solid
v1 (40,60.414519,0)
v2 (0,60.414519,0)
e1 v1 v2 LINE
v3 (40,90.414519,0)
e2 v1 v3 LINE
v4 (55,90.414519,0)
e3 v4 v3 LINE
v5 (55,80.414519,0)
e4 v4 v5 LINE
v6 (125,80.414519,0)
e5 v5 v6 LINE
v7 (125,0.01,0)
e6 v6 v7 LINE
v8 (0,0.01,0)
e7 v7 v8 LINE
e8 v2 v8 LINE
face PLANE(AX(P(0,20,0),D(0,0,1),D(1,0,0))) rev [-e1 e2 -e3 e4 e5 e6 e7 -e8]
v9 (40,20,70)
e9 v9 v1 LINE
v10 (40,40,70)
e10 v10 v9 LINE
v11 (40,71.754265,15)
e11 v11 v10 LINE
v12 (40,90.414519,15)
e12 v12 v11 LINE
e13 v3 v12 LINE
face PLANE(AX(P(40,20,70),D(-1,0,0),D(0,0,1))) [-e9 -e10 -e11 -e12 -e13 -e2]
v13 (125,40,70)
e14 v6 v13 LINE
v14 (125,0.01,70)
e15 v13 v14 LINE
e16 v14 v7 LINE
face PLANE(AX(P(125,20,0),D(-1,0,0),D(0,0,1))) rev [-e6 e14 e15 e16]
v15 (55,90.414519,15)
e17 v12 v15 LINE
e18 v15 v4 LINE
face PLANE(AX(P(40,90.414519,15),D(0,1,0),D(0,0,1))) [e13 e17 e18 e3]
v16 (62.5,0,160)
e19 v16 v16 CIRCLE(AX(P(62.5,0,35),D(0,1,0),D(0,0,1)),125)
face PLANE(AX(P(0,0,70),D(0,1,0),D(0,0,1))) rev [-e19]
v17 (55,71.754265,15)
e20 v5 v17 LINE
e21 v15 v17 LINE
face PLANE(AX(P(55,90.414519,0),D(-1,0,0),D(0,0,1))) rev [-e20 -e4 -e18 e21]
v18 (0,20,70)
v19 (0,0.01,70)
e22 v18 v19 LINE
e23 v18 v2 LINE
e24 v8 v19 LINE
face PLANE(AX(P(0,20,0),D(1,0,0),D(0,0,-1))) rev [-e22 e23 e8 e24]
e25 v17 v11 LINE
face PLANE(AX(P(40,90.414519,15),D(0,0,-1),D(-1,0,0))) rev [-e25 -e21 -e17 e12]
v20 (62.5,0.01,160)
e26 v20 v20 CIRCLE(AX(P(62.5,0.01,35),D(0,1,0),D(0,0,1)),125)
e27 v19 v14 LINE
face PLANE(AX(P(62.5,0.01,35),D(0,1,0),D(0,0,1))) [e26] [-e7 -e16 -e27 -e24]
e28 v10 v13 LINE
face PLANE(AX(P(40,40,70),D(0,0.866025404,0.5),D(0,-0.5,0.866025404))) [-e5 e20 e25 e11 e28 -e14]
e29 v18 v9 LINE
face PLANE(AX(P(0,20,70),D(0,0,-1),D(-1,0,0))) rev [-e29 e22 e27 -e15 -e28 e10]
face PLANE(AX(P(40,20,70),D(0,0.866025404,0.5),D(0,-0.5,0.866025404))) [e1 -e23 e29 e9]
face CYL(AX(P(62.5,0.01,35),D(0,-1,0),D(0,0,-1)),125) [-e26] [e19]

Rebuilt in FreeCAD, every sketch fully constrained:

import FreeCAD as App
import Part
import Sketcher
from FreeCAD import Vector
Q = App.Units.Quantity


def add_polygon(sketch, points):
    """Adds a closed chain of lines whose ends are joined by coincident constraints."""
    first, n = sketch.GeometryCount, len(points)
    for a, b in zip(points, points[1:] + points[:1]):
        sketch.addGeometry(Part.LineSegment(App.Vector(*a, 0), App.Vector(*b, 0)), False)
    for i in range(n):
        sketch.addConstraint(Sketcher.Constraint("Coincident", first + i, 2, first + (i + 1) % n, 1))

doc = App.newDocument("Part")
body = doc.addObject("PartDesign::Body", "Body")

# Sketch on XZ plane
sketch1 = doc.addObject("Sketcher::SketchObject", "Sketch")
body.addObject(sketch1)
sketch1.AttachmentSupport = (doc.XZ_Plane, [""])
sketch1.MapMode = "FlatFace"
add_polygon(sketch1, [(0, 0), (0, 70), (125, 70), (125, 0)])  # lines 0-3
sketch1.addConstraint([
    Sketcher.Constraint("Vertical", 0),
    Sketcher.Constraint("Horizontal", 1),
    Sketcher.Constraint("Vertical", 2),
    Sketcher.Constraint("Horizontal", 3),
    Sketcher.Constraint("Coincident", 3, 2, -1, 1),
    Sketcher.Constraint("DistanceX", 1, 1, 1, 2, Q("125 mm")),
    Sketcher.Constraint("DistanceY", 0, 1, 0, 2, Q("70 mm")),
])
pad1 = doc.addObject("PartDesign::Pad", "Pad")
body.addObject(pad1)
pad1.Profile = sketch1
pad1.Length = 20
pad1.Reversed = True

# Sketch on YZ plane
sketch2 = doc.addObject("Sketcher::SketchObject", "Sketch001")
body.addObject(sketch2)
sketch2.AttachmentSupport = (doc.YZ_Plane, [""])
sketch2.MapMode = "FlatFace"
add_polygon(sketch2, [(20, 0), (20, 70), (60.414519, 0)])  # lines 0-2
sketch2.addConstraint([
    Sketcher.Constraint("Vertical", 0),
    Sketcher.Constraint("Horizontal", 2),
    Sketcher.Constraint("PointOnObject", 1, 2, -1),
    Sketcher.Constraint("DistanceY", 0, 1, 0, 2, Q("70 mm")),
    Sketcher.Constraint("Angle", 1, Q("-60 deg")),
    Sketcher.Constraint("DistanceX", -1, 1, 0, 2, Q("20 mm")),
])
pad2 = doc.addObject("PartDesign::Pad", "Pad001")
body.addObject(pad2)
pad2.Profile = sketch2
pad2.Length = 40

# Sketch on YZ plane
sketch3 = doc.addObject("Sketcher::SketchObject", "Sketch002")
body.addObject(sketch3)
sketch3.AttachmentSupport = (doc.YZ_Plane, [""])
sketch3.MapMode = "FlatFace"
sketch3.AttachmentOffset = App.Placement(Vector(0, 0, 125), App.Rotation())
add_polygon(sketch3, [(40, 70), (20, 70), (20, 0), (80.414519, 0)])  # lines 0-3
sketch3.addConstraint([
    Sketcher.Constraint("Horizontal", 0),
    Sketcher.Constraint("Vertical", 1),
    Sketcher.Constraint("Horizontal", 2),
    Sketcher.Constraint("PointOnObject", 1, 2, -1),
    Sketcher.Constraint("DistanceX", 0, 2, 0, 1, Q("20 mm")),
    Sketcher.Constraint("DistanceY", 1, 2, 1, 1, Q("70 mm")),
    Sketcher.Constraint("Angle", 3, Q("120 deg")),
    Sketcher.Constraint("DistanceX", -1, 1, 0, 2, Q("20 mm")),
])
pad3 = doc.addObject("PartDesign::Pad", "Pad002")
body.addObject(pad3)
pad3.Profile = sketch3
pad3.Length = 85
pad3.Reversed = True

# Sketch on XZ plane
sketch4 = doc.addObject("Sketcher::SketchObject", "Sketch003")
body.addObject(sketch4)
sketch4.AttachmentSupport = (doc.XZ_Plane, [""])
sketch4.MapMode = "FlatFace"
sketch4.AttachmentOffset = App.Placement(Vector(0, 0, -80.414519), App.Rotation())
add_polygon(sketch4, [(55, 15), (55, 0), (40, 0), (40, 15)])  # lines 0-3
sketch4.addConstraint([
    Sketcher.Constraint("Vertical", 0),
    Sketcher.Constraint("Horizontal", 1),
    Sketcher.Constraint("Vertical", 2),
    Sketcher.Constraint("Horizontal", 3),
    Sketcher.Constraint("PointOnObject", 0, 2, -1),
    Sketcher.Constraint("Equal", 3, 0),
    Sketcher.Constraint("DistanceX", 1, 2, 1, 1, Q("15 mm")),
    Sketcher.Constraint("DistanceX", -1, 1, 0, 2, Q("55 mm")),
])
pad4 = doc.addObject("PartDesign::Pad", "Pad003")
body.addObject(pad4)
pad4.Profile = sketch4
pad4.Type = "TwoLengths"
pad4.Length = 10
pad4.Length2 = 20
pad4.Reversed = True

# Sketch on XZ plane
sketch5 = doc.addObject("Sketcher::SketchObject", "Sketch004")
body.addObject(sketch5)
sketch5.AttachmentSupport = (doc.XZ_Plane, [""])
sketch5.MapMode = "FlatFace"
sketch5.addGeometry(Part.Circle(Vector(62.5, 35, 0), Vector(0, 0, 1), 125), False)
sketch5.addConstraint([
    Sketcher.Constraint("Diameter", 0, Q("250 mm")),
    Sketcher.Constraint("DistanceY", -1, 1, 0, 3, Q("35 mm")),
    Sketcher.Constraint("DistanceX", -1, 1, 0, 3, Q("62.5 mm")),
])
pad5 = doc.addObject("PartDesign::Pad", "Pad004")
body.addObject(pad5)
pad5.Profile = sketch5
pad5.Length = 0.01
pad5.Reversed = True

doc.recompute()
